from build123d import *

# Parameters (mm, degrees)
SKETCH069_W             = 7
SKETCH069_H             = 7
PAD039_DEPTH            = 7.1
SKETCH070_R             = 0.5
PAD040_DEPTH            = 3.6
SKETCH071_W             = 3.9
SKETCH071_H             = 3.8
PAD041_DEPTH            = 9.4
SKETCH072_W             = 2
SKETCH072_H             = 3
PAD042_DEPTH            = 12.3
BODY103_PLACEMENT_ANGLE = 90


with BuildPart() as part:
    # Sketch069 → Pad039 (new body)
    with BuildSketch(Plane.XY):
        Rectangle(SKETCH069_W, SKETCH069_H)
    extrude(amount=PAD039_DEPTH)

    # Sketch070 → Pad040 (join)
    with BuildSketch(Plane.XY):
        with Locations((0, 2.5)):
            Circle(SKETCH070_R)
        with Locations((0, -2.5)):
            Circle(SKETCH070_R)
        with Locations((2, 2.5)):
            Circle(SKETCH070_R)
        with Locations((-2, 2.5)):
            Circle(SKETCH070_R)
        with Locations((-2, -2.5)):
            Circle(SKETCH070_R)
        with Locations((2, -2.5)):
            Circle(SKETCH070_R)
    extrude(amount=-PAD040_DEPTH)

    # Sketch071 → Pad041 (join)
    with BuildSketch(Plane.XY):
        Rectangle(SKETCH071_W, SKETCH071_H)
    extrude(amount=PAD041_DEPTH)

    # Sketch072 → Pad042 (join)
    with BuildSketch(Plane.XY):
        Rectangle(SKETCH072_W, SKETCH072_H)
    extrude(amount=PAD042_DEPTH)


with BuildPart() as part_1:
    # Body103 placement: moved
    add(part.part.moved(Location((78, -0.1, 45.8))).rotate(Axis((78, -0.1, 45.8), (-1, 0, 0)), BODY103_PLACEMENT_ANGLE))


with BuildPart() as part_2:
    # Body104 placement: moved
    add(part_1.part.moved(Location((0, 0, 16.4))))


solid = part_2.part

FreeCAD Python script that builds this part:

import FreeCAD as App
import Part
import Sketcher
from FreeCAD import Vector

doc = App.newDocument("Part")
params = doc.addObject("Spreadsheet::Sheet", "Params")
for row, (alias, value) in enumerate([
    ("sketch1_width", "7 mm"),
    ("pad1_length", "7.1 mm"),
    ("sketch2_diameter", "1 mm"),
    ("pad2_length", "3.6 mm"),
    ("sketch3_width", "3.9 mm"),
    ("sketch3_height", "3.8 mm"),
    ("pad3_length", "9.4 mm"),
    ("sketch4_width", "2 mm"),
    ("sketch4_height", "3 mm"),
    ("pad4_length", "12.3 mm"),
], start=1):
    params.set(f"A{row}", alias)
    params.set(f"B{row}", "=" + value)
    params.setAlias(f"B{row}", alias)

body = doc.addObject("PartDesign::Body", "Body")

# Sketch on XY plane
sketch1 = body.newObject("Sketcher::SketchObject", "Sketch")
sketch1.AttachmentSupport = (doc.getObject("XY_Plane"), [""])
sketch1.MapMode = "FlatFace"
sketch1.addGeometry([
    Part.LineSegment(Vector(-3.5, 3.5, 0), Vector(-3.5, -3.5, 0)),
    Part.LineSegment(Vector(-3.5, -3.5, 0), Vector(3.5, -3.5, 0)),
    Part.LineSegment(Vector(3.5, -3.5, 0), Vector(3.5, 3.5, 0)),
    Part.LineSegment(Vector(3.5, 3.5, 0), Vector(-3.5, 3.5, 0)),
], False)
sketch1.addConstraint([
    Sketcher.Constraint("Coincident", 0, 2, 1, 1),
    Sketcher.Constraint("Coincident", 1, 2, 2, 1),
    Sketcher.Constraint("Coincident", 2, 2, 3, 1),
    Sketcher.Constraint("Coincident", 3, 2, 0, 1),
    Sketcher.Constraint("Vertical", 0),
    Sketcher.Constraint("Horizontal", 1),
    Sketcher.Constraint("Vertical", 2),
    Sketcher.Constraint("Horizontal", 3),
    Sketcher.Constraint("Symmetric", 0, 2, 2, 2, -1, 1),
    Sketcher.Constraint("Equal", 3, 0),
    Sketcher.Constraint("DistanceX", 1, 1, 1, 2, 7.0),
])
sketch1.setExpression("Constraints[10]", "Params.sketch1_width")
pad1 = body.newObject("PartDesign::Pad", "Pad")
pad1.Profile = sketch1
pad1.setExpression("Length", "Params.pad1_length")

# Sketch on XY plane
sketch2 = body.newObject("Sketcher::SketchObject", "Sketch001")
sketch2.AttachmentSupport = (doc.getObject("XY_Plane"), [""])
sketch2.MapMode = "FlatFace"
sketch2.addGeometry([
    Part.Circle(Vector(0, 2.5, 0), Vector(0, 0, 1), 0.5),  # 0
    Part.Circle(Vector(0, -2.5, 0), Vector(0, 0, 1), 0.5),  # 1
    Part.Circle(Vector(2, 2.5, 0), Vector(0, 0, 1), 0.5),  # 2
    Part.Circle(Vector(-2, 2.5, 0), Vector(0, 0, 1), 0.5),  # 3
    Part.Circle(Vector(-2, -2.5, 0), Vector(0, 0, 1), 0.5),  # 4
    Part.Circle(Vector(2, -2.5, 0), Vector(0, 0, 1), 0.5),  # 5
], False)
sketch2.addConstraint([
    Sketcher.Constraint("Equal", 0, 1),
    Sketcher.Constraint("Equal", 1, 2),
    Sketcher.Constraint("Equal", 2, 3),
    Sketcher.Constraint("Equal", 3, 4),
    Sketcher.Constraint("Equal", 4, 5),
    Sketcher.Constraint("Symmetric", 0, 3, 1, 3, -1, 1),
    Sketcher.Constraint("Symmetric", 2, 3, 4, 3, -1, 1),
    Sketcher.Constraint("Symmetric", 3, 3, 5, 3, -1, 1),
    Sketcher.Constraint("Symmetric", 2, 3, 3, 3, -2),
    Sketcher.Constraint("PointOnObject", 0, 3, -2),
    Sketcher.Constraint("Horizontal", 0, 3, 2, 3),
    Sketcher.Constraint("Diameter", 0, 1.0),
    Sketcher.Constraint("DistanceX", -1, 1, 2, 3, 2.0),
    Sketcher.Constraint("DistanceY", 1, 3, 0, 3, 5.0),
])
sketch2.setExpression("Constraints[11]", "Params.sketch2_diameter")
pad2 = body.newObject("PartDesign::Pad", "Pad001")
pad2.Profile = sketch2
pad2.setExpression("Length", "Params.pad2_length")
pad2.Reversed = True

# Sketch on XY plane
sketch3 = body.newObject("Sketcher::SketchObject", "Sketch002")
sketch3.AttachmentSupport = (doc.getObject("XY_Plane"), [""])
sketch3.MapMode = "FlatFace"
sketch3.addGeometry([
    Part.LineSegment(Vector(-1.95, 1.9, 0), Vector(-1.95, -1.9, 0)),
    Part.LineSegment(Vector(-1.95, -1.9, 0), Vector(1.95, -1.9, 0)),
    Part.LineSegment(Vector(1.95, -1.9, 0), Vector(1.95, 1.9, 0)),
    Part.LineSegment(Vector(1.95, 1.9, 0), Vector(-1.95, 1.9, 0)),
], False)
sketch3.addConstraint([
    Sketcher.Constraint("Coincident", 0, 2, 1, 1),
    Sketcher.Constraint("Coincident", 1, 2, 2, 1),
    Sketcher.Constraint("Coincident", 2, 2, 3, 1),
    Sketcher.Constraint("Coincident", 3, 2, 0, 1),
    Sketcher.Constraint("Vertical", 0),
    Sketcher.Constraint("Horizontal", 1),
    Sketcher.Constraint("Vertical", 2),
    Sketcher.Constraint("Horizontal", 3),
    Sketcher.Constraint("Symmetric", 0, 2, 2, 2, -1, 1),
    Sketcher.Constraint("DistanceX", 1, 1, 1, 2, 3.9),
    Sketcher.Constraint("DistanceY", 0, 2, 0, 1, 3.8),
])
sketch3.setExpression("Constraints[9]", "Params.sketch3_width")
sketch3.setExpression("Constraints[10]", "Params.sketch3_height")
pad3 = body.newObject("PartDesign::Pad", "Pad002")
pad3.Profile = sketch3
pad3.setExpression("Length", "Params.pad3_length")

# Sketch on XY plane
sketch4 = body.newObject("Sketcher::SketchObject", "Sketch003")
sketch4.AttachmentSupport = (doc.getObject("XY_Plane"), [""])
sketch4.MapMode = "FlatFace"
sketch4.addGeometry([
    Part.LineSegment(Vector(-1, 1.5, 0), Vector(-1, -1.5, 0)),
    Part.LineSegment(Vector(-1, -1.5, 0), Vector(1, -1.5, 0)),
    Part.LineSegment(Vector(1, -1.5, 0), Vector(1, 1.5, 0)),
    Part.LineSegment(Vector(1, 1.5, 0), Vector(-1, 1.5, 0)),
], False)
sketch4.addConstraint([
    Sketcher.Constraint("Coincident", 0, 2, 1, 1),
    Sketcher.Constraint("Coincident", 1, 2, 2, 1),
    Sketcher.Constraint("Coincident", 2, 2, 3, 1),
    Sketcher.Constraint("Coincident", 3, 2, 0, 1),
    Sketcher.Constraint("Vertical", 0),
    Sketcher.Constraint("Horizontal", 1),
    Sketcher.Constraint("Vertical", 2),
    Sketcher.Constraint("Horizontal", 3),
    Sketcher.Constraint("Symmetric", 0, 2, 2, 2, -1, 1),
    Sketcher.Constraint("DistanceX", 1, 1, 1, 2, 2.0),
    Sketcher.Constraint("DistanceY", 0, 2, 0, 1, 3.0),
])
sketch4.setExpression("Constraints[9]", "Params.sketch4_width")
sketch4.setExpression("Constraints[10]", "Params.sketch4_height")
pad4 = body.newObject("PartDesign::Pad", "Pad003")
pad4.Profile = sketch4
pad4.setExpression("Length", "Params.pad4_length")
body2 = doc.addObject("PartDesign::Body", "Body001")
doc.recompute()

body.Placement = App.Placement(Vector(78, -0.1, 45.8), App.Rotation(Vector(-1, 0, 0), 90))
boolean = body2.newObject("PartDesign::Boolean", "Boolean")
boolean.Type = "Fuse"
boolean.addObjects([body])
body3 = doc.addObject("PartDesign::Body", "Body002")
doc.recompute()

body2.Placement = App.Placement(Vector(0, 0, 16.4), App.Rotation(Vector(0, 0, 1), 0))
boolean2 = body3.newObject("PartDesign::Boolean", "Boolean001")
boolean2.Type = "Fuse"
boolean2.addObjects([body2])

doc.recompute()
